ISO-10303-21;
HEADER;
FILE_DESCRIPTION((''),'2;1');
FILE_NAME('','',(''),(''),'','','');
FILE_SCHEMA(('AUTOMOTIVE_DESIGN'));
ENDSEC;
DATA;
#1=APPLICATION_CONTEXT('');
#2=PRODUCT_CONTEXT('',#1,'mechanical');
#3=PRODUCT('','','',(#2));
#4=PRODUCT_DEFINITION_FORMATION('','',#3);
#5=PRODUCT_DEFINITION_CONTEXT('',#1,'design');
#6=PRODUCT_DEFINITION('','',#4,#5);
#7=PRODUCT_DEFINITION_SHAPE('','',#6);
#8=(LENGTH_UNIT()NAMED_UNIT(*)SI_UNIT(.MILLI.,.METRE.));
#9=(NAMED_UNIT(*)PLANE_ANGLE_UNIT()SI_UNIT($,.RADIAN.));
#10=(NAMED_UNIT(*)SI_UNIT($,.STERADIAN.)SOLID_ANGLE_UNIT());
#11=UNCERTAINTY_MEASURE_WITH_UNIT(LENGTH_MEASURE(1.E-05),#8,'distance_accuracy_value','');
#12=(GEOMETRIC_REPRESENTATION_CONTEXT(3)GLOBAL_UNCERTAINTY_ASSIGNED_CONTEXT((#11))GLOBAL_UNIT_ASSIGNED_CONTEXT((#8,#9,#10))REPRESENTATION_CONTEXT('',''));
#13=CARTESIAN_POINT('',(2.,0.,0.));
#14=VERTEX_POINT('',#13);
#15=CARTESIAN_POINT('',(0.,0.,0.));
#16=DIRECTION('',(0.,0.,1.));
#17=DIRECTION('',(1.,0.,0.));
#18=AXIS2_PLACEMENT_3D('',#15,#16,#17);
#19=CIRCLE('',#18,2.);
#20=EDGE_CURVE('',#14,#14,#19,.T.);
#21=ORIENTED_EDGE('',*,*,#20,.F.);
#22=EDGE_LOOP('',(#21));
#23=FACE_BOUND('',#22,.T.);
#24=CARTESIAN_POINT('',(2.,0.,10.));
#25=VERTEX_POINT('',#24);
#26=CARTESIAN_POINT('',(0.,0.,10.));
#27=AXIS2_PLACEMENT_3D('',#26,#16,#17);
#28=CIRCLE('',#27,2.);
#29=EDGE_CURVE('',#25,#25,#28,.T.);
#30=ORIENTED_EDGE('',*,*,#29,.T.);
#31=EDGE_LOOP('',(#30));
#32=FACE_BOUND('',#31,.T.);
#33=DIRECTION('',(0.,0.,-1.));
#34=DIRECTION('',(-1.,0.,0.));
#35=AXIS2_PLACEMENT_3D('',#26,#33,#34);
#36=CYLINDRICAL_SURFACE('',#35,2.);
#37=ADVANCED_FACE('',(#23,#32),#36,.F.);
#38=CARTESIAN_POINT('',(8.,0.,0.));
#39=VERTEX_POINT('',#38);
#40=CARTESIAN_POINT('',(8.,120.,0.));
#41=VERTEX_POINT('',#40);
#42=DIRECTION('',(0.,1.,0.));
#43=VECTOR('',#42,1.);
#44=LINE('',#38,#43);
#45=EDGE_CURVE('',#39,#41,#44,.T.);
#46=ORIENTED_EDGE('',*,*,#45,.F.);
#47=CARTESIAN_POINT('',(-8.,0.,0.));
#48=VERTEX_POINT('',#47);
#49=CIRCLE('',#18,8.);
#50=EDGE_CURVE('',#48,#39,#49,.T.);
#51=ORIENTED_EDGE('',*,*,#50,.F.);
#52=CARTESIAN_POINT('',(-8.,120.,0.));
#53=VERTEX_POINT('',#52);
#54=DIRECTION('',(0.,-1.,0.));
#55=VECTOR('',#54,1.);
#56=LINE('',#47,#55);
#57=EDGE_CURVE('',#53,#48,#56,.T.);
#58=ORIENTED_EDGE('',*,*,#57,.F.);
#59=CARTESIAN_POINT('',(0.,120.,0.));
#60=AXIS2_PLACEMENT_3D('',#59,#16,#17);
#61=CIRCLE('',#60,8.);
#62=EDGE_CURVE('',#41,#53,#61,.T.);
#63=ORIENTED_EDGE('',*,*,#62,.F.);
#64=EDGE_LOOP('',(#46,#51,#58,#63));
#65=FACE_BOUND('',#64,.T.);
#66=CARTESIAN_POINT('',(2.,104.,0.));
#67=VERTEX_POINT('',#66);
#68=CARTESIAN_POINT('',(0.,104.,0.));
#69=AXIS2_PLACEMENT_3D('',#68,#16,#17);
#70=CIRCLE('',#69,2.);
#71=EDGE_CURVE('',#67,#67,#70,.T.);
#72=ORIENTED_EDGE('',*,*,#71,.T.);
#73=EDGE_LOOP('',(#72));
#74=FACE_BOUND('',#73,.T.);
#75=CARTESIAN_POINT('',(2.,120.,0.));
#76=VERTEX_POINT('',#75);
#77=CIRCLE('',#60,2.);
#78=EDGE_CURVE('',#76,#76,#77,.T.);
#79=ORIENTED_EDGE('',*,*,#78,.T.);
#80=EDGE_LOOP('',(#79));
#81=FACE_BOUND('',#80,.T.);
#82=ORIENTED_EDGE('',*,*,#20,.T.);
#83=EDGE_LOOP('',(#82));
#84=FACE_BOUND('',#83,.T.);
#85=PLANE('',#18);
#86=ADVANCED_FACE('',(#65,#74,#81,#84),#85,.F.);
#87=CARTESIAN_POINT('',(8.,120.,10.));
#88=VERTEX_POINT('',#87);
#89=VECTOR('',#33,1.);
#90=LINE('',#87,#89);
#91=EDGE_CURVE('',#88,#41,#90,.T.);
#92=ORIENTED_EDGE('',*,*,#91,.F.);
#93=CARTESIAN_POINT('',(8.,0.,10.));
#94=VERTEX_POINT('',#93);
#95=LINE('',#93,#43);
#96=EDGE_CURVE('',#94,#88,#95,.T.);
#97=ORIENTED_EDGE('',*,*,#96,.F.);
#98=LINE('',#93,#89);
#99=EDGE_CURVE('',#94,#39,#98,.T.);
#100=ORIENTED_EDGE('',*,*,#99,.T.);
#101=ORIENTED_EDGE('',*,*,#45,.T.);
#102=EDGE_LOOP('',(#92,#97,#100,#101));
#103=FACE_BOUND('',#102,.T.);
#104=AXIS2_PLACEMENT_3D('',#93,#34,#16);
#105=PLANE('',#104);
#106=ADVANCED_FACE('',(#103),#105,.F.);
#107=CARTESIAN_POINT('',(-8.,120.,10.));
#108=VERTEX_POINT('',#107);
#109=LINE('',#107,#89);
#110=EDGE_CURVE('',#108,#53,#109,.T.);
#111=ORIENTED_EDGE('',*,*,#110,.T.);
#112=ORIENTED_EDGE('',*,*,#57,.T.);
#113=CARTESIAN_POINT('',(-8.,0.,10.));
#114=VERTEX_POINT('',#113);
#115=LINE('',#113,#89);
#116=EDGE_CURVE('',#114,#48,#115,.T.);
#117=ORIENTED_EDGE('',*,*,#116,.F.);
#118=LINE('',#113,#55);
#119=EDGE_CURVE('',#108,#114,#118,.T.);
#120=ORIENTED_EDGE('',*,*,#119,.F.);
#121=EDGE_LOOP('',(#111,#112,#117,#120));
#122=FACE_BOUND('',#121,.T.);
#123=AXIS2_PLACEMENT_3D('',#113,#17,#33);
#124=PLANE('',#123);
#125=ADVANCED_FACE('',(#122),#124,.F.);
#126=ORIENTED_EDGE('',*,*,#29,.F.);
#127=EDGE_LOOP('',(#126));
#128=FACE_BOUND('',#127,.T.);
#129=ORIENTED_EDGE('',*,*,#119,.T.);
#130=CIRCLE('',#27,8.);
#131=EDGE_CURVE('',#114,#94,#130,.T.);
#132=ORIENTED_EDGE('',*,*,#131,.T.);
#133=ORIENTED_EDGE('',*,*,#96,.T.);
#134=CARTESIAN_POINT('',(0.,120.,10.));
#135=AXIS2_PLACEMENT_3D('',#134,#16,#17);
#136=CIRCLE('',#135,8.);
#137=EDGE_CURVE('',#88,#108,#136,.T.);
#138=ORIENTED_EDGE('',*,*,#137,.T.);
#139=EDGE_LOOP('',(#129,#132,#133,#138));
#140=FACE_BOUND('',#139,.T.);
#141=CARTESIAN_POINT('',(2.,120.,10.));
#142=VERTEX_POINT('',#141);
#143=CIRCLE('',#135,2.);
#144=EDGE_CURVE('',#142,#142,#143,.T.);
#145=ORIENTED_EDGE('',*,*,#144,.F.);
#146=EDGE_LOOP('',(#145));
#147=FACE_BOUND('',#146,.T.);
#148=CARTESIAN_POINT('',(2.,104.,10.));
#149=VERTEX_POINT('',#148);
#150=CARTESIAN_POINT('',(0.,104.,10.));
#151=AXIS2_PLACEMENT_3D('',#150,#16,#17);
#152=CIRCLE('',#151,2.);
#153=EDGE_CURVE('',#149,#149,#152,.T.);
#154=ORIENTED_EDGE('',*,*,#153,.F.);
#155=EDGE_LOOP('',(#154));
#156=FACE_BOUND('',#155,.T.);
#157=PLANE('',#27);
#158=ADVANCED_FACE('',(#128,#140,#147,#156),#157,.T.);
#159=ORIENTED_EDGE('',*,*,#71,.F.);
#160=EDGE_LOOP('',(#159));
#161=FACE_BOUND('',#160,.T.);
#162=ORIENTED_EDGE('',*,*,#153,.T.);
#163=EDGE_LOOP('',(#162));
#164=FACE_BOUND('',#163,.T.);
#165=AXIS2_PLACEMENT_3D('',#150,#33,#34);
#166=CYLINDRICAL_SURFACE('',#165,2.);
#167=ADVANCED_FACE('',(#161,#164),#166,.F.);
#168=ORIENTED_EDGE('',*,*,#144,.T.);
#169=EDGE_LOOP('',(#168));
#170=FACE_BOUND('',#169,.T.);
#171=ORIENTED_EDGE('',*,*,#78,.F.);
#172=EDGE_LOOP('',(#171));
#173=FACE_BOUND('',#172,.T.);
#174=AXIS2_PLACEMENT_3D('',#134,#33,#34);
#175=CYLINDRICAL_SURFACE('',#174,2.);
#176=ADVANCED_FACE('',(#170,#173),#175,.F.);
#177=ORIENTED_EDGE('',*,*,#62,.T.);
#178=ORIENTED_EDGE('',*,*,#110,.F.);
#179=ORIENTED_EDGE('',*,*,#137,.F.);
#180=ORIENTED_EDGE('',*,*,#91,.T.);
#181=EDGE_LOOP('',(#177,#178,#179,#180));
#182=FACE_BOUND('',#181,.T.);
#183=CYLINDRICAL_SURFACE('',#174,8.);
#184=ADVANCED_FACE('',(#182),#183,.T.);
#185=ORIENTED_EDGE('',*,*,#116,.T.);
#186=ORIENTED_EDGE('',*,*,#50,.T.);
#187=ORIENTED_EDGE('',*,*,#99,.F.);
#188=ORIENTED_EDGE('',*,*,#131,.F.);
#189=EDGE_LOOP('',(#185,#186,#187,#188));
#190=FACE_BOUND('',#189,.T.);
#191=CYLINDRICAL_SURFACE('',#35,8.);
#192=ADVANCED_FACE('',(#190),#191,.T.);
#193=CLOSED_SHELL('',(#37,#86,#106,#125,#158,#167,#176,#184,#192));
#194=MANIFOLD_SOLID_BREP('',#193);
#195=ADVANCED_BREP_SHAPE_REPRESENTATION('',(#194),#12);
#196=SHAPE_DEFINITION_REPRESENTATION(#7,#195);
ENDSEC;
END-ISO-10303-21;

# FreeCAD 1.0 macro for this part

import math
import FreeCAD as App
import Part
import Sketcher

doc = App.newDocument("Part")
params = doc.addObject("Spreadsheet::Sheet", "Params")
for row, (alias, value) in enumerate([
    ("sketch1_diameter", "4 mm"),
    ("sketch1_radius", "8 mm"),
    ("sketch1_height", "120 mm"),
    ("pad1_length", "10 mm"),
], start=1):
    params.set(f"A{row}", alias)
    params.set(f"B{row}", "=" + value)
    params.setAlias(f"B{row}", alias)

body = doc.addObject("PartDesign::Body", "Body")

sketch1 = doc.addObject("Sketcher::SketchObject", "Sketch")
body.addObject(sketch1)
sketch1.AttachmentSupport = (doc.XY_Plane, [""])
sketch1.MapMode = "FlatFace"
sketch1.addGeometry(Part.LineSegment(App.Vector(-8, 120, 0), App.Vector(-8, 0, 0)), False)
sketch1.addGeometry(Part.ArcOfCircle(Part.Circle(App.Vector(0, 0, 0), App.Vector(0, 0, 1), 8), math.radians(180), math.radians(360)), False)
sketch1.addGeometry(Part.LineSegment(App.Vector(8, 0, 0), App.Vector(8, 120, 0)), False)
sketch1.addGeometry(Part.ArcOfCircle(Part.Circle(App.Vector(0, 120, 0), App.Vector(0, 0, 1), 8), math.radians(0), math.radians(180)), False)
sketch1.addGeometry(Part.Circle(App.Vector(0, 0, 0), App.Vector(0, 0, 1), 2), False)
sketch1.addGeometry(Part.Circle(App.Vector(0, 104, 0), App.Vector(0, 0, 1), 2), False)
sketch1.addGeometry(Part.Circle(App.Vector(0, 120, 0), App.Vector(0, 0, 1), 2), False)
sketch1.addConstraint(Sketcher.Constraint("Tangent", 0, 2, 1, 1))
sketch1.addConstraint(Sketcher.Constraint("Tangent", 1, 2, 2, 1))
sketch1.addConstraint(Sketcher.Constraint("Tangent", 2, 2, 3, 1))
sketch1.addConstraint(Sketcher.Constraint("Tangent", 3, 2, 0, 1))
sketch1.addConstraint(Sketcher.Constraint("Vertical", 0))
sketch1.addConstraint(Sketcher.Constraint("Vertical", 2))
sketch1.addConstraint(Sketcher.Constraint("Coincident", 1, 3, -1, 1))
sketch1.addConstraint(Sketcher.Constraint("Coincident", 4, 3, -1, 1))
sketch1.addConstraint(Sketcher.Constraint("Coincident", 6, 3, 3, 3))
sketch1.addConstraint(Sketcher.Constraint("Equal", 4, 5))
sketch1.addConstraint(Sketcher.Constraint("Equal", 5, 6))
sketch1.addConstraint(Sketcher.Constraint("PointOnObject", 5, 3, -2))
sketch1.addConstraint(Sketcher.Constraint("Diameter", 4, 4.0))
sketch1.addConstraint(Sketcher.Constraint("Radius", 1, 8.0))
sketch1.addConstraint(Sketcher.Constraint("DistanceY", 0, 2, 0, 1, 120.0))
sketch1.addConstraint(Sketcher.Constraint("DistanceY", -1, 1, 5, 3, 104.0))
sketch1.setExpression("Constraints[12]", "Params.sketch1_diameter")
sketch1.setExpression("Constraints[13]", "Params.sketch1_radius")
sketch1.setExpression("Constraints[14]", "Params.sketch1_height")
pad1 = doc.addObject("PartDesign::Pad", "Pad")
body.addObject(pad1)
pad1.Profile = sketch1
pad1.setExpression("Length", "Params.pad1_length")

doc.recompute()
